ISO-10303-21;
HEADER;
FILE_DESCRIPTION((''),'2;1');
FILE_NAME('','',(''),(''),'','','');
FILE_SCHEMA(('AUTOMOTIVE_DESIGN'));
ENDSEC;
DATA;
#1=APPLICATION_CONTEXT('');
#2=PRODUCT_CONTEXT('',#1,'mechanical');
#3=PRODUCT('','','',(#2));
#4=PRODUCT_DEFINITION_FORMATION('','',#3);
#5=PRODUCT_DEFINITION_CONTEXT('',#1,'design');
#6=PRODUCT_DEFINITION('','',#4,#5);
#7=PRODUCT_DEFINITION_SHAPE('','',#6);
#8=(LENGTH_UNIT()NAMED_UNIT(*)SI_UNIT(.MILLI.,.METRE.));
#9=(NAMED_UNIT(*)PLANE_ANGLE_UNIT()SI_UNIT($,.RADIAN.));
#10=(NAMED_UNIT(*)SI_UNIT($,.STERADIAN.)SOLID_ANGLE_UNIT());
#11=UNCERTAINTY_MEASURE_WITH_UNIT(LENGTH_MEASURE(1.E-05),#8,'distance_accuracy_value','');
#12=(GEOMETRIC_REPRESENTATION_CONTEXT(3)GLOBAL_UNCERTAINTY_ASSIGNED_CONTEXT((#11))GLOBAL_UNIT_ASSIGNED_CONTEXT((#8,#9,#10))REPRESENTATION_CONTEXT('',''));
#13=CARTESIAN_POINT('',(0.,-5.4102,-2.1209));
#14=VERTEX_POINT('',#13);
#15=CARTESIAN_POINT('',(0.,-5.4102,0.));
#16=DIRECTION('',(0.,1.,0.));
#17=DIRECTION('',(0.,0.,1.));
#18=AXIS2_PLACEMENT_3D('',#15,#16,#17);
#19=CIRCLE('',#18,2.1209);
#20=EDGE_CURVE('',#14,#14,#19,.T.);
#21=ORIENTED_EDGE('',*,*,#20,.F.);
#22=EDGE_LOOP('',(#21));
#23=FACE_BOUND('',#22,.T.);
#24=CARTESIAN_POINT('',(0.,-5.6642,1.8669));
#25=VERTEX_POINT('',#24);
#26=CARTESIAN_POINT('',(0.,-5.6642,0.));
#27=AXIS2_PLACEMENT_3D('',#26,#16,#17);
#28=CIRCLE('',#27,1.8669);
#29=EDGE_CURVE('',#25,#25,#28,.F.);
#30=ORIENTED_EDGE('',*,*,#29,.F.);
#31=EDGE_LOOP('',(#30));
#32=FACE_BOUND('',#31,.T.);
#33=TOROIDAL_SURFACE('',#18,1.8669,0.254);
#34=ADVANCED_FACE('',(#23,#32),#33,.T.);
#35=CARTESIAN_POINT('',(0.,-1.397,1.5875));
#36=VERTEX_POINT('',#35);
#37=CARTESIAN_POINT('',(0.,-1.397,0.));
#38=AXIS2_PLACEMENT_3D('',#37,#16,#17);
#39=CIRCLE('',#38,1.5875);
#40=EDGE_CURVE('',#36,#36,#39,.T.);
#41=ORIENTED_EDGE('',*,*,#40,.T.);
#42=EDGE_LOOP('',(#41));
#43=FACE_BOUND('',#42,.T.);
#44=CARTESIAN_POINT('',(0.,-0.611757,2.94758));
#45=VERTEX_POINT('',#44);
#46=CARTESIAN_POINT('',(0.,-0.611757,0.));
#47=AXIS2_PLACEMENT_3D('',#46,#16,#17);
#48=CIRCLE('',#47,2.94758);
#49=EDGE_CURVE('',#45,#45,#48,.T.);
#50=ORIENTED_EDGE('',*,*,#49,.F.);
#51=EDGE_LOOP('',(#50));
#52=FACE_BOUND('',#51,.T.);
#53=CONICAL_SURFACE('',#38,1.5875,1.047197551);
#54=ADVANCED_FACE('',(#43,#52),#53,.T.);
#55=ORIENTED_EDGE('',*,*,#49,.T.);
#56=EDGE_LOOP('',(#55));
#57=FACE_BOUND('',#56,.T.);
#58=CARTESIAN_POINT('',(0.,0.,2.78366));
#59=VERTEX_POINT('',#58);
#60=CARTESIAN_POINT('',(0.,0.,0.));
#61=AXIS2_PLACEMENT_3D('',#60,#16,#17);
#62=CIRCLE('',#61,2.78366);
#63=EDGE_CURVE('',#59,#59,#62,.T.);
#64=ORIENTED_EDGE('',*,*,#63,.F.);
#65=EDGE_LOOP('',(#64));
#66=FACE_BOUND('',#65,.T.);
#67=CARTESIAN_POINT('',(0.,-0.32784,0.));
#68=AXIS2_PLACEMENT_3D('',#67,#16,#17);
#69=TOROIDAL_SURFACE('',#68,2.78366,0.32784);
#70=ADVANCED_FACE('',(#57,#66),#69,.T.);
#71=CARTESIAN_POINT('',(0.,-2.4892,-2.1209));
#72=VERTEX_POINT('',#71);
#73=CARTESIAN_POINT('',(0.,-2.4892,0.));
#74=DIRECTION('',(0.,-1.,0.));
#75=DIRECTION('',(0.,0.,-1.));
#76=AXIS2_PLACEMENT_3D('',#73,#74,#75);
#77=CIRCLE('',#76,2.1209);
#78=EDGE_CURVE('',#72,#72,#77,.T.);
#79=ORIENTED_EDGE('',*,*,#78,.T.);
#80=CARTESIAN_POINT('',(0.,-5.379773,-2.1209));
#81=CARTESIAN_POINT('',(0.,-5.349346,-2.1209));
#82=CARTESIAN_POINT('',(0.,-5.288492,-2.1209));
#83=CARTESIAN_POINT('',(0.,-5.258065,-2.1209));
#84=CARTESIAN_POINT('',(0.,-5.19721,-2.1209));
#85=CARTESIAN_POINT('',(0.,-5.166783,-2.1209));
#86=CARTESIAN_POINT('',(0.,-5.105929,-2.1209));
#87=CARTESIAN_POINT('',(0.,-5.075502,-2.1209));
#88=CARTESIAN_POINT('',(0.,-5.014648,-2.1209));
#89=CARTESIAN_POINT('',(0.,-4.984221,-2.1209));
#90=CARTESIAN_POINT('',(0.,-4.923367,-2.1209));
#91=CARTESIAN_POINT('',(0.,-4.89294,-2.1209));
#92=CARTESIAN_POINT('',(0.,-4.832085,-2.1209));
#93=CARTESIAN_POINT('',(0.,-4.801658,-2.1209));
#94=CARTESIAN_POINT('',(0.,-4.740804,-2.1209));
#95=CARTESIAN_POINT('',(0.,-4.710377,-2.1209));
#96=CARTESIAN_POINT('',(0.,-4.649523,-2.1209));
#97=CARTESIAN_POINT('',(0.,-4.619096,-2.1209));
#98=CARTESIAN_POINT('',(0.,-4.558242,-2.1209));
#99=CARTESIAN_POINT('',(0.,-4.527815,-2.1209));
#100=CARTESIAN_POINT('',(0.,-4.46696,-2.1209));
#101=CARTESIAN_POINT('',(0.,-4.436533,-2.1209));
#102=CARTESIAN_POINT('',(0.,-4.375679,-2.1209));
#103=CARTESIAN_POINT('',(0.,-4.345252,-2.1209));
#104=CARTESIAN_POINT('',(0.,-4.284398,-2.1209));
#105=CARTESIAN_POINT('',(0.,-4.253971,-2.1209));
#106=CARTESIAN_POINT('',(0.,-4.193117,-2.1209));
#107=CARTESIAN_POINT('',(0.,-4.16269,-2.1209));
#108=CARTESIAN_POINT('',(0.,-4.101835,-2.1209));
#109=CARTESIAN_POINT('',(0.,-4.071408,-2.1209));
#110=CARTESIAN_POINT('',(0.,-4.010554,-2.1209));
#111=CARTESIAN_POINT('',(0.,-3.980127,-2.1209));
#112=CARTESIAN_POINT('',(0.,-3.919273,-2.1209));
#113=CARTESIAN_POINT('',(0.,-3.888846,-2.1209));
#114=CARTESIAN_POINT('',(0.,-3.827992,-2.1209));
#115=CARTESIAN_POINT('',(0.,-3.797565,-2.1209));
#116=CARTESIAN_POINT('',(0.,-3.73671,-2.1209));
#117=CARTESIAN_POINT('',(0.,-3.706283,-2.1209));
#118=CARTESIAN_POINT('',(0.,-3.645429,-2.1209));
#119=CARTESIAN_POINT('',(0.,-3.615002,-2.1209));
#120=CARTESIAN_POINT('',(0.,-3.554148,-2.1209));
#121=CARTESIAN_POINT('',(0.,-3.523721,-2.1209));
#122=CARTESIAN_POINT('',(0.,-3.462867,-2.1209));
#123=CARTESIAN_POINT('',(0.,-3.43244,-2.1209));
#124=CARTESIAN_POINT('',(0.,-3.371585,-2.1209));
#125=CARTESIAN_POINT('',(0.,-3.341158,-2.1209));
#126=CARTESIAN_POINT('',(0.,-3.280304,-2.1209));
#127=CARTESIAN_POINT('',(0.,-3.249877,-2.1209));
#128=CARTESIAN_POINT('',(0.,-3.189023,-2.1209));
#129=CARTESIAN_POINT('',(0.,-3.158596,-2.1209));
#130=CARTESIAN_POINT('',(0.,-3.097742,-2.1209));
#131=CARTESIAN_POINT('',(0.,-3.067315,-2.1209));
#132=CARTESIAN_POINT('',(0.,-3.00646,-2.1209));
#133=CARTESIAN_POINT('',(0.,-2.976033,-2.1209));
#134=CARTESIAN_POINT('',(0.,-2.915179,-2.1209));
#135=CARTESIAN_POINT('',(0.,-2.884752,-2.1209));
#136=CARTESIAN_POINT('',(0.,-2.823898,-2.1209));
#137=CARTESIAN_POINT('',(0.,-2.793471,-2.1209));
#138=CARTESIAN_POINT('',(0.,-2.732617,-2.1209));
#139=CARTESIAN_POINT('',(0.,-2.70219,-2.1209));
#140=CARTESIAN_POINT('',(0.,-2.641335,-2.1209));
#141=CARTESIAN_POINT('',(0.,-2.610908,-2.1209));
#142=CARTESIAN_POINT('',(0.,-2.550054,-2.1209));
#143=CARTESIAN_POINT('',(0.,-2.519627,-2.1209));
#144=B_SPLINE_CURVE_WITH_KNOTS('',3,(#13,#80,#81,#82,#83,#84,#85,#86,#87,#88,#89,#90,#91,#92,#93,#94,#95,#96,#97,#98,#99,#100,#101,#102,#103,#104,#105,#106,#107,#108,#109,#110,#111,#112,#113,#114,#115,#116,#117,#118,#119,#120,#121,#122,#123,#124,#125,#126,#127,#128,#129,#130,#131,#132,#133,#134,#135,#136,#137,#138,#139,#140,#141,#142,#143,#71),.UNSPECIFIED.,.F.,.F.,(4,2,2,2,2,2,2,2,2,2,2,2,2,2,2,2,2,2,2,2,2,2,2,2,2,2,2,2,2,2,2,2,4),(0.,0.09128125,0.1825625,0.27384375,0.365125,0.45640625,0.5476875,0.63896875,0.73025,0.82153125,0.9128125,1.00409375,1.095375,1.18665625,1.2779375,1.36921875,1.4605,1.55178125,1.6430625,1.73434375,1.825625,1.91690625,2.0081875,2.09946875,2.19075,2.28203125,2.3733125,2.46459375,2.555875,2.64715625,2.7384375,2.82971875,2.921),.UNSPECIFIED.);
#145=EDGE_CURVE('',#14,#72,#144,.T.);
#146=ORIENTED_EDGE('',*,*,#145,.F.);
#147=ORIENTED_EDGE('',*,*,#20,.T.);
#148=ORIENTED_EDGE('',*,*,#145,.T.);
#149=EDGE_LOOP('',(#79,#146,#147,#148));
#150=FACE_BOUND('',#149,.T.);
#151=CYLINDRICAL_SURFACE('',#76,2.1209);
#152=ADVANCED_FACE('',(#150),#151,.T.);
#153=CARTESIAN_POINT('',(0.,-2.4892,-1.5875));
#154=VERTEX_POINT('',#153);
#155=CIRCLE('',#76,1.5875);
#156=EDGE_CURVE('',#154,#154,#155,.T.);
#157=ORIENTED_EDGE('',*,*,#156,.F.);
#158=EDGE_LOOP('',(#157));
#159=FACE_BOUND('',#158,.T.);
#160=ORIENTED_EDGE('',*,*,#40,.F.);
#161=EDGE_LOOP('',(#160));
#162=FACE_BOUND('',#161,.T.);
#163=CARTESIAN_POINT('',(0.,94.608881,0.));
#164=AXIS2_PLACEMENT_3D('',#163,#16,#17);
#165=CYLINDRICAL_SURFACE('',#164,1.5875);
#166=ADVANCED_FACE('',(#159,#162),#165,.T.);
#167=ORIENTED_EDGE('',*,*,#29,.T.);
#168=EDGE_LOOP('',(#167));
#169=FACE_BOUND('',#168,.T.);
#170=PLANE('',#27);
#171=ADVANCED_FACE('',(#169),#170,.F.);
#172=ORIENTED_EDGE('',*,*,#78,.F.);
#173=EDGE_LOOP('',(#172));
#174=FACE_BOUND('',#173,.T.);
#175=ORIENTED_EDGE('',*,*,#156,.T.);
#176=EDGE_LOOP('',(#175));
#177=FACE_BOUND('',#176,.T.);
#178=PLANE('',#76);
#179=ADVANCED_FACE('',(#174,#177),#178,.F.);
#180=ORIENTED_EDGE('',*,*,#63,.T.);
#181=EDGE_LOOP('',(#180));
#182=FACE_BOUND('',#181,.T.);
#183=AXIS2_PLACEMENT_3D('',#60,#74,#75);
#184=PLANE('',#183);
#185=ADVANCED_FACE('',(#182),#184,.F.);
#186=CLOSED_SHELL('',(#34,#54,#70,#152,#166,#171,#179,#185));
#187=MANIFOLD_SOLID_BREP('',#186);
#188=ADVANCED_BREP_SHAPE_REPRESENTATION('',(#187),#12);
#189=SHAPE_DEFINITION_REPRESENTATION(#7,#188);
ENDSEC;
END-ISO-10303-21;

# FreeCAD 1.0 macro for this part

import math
import FreeCAD as App
import Part
import Sketcher

V = App.Vector
Q = App.Units.Quantity


def edges_at(feature, points):
    """Names of the edges that pass closest to the given points."""
    edges = feature.Shape.Edges
    near = lambda p: min(range(len(edges)), key=lambda i: edges[i].distToShape(Part.Vertex(*p))[0])
    return sorted({f"Edge{near(p) + 1}" for p in points})

doc = App.newDocument("Part")
body = doc.addObject("PartDesign::Body", "Body")

# Sketch on XY plane
sketch1 = body.newObject("Sketcher::SketchObject", "Sketch")
sketch1.AttachmentSupport = (doc.getObject("XY_Plane"), [""])
sketch1.MapMode = "FlatFace"
sketch1.addGeometry([
    Part.LineSegment(V(1.59, -10.06, 0), V(1.59, -1.4, 0)),  # 0
    Part.LineSegment(V(1.59, -1.4, 0), V(2.95, -0.61, 0)),  # 1
    Part.ArcOfCircle(Part.Circle(V(2.78, -0.33, 0), V(0, 0, 1), 0.33), math.radians(-60), math.radians(90)),  # 2
    Part.LineSegment(V(2.78, 0, 0), V(0, 0, 0)),  # 3
    Part.LineSegment(V(0, 0, 0), V(0, -10.06, 0)),  # 4
    Part.LineSegment(V(0, -10.06, 0), V(1.59, -10.06, 0)),  # 5
], False)
sketch1.addConstraint([
    Sketcher.Constraint("Coincident", 0, 2, 1, 1),
    Sketcher.Constraint("Tangent", 1, 2, 2, 1),
    Sketcher.Constraint("Tangent", 2, 2, 3, 1),
    Sketcher.Constraint("Coincident", 3, 2, 4, 1),
    Sketcher.Constraint("Coincident", 4, 2, 5, 1),
    Sketcher.Constraint("Coincident", 5, 2, 0, 1),
    Sketcher.Constraint("Vertical", 0),
    Sketcher.Constraint("Horizontal", 3),
    Sketcher.Constraint("Vertical", 4),
    Sketcher.Constraint("Horizontal", 5),
    Sketcher.Constraint("Coincident", 3, 2, -1, 1),
    Sketcher.Constraint("Angle", 1, Q("30 deg")),
    Sketcher.Constraint("DistanceX", 5, 1, 5, 2, Q("0.0625 in")),
    Sketcher.Constraint("DistanceY", 0, 1, 0, 2, Q("0.341 in")),
    Sketcher.Constraint("DistanceY", 4, 2, 4, 1, Q("0.396 in")),
    Sketcher.Constraint("Radius", 2, 0.32784),
])
revolution = body.newObject("PartDesign::Revolution", "Revolution")
revolution.Profile = sketch1
revolution.ReferenceAxis = (sketch1, ["V_Axis"])
revolution.Angle = 360

# Sketch on XZ plane
sketch2 = body.newObject("Sketcher::SketchObject", "Sketch001")
sketch2.AttachmentSupport = (doc.getObject("XZ_Plane"), [""])
sketch2.MapMode = "FlatFace"
sketch2.AttachmentOffset = App.Placement(V(0, 0, 0.396 * 25.4), App.Rotation())
sketch2.addGeometry(Part.Circle(V(0, 0, 0), V(0, 0, 1), 2.1), False)
sketch2.addConstraint([
    Sketcher.Constraint("Coincident", 0, 3, -1, 1),
    Sketcher.Constraint("Diameter", 0, Q("0.167 in")),
])
pad1 = body.newObject("PartDesign::Pad", "Pad")
pad1.Profile = sketch2
pad1.Length = Q("0.298 in")
pad1.Reversed = True

# Sketch on XZ plane
sketch3 = body.newObject("Sketcher::SketchObject", "Sketch002")
sketch3.AttachmentSupport = (doc.getObject("XZ_Plane"), [""])
sketch3.MapMode = "FlatFace"
sketch3.AttachmentOffset = App.Placement(V(0, 0, 0.563 * 25.4), App.Rotation())
sketch3.addGeometry(Part.Circle(V(0, 0, 0), V(0, 0, 1), 2.1), False)
sketch3.addConstraint([
    Sketcher.Constraint("Coincident", 0, 3, -1, 1),
    Sketcher.Constraint("Diameter", 0, Q("0.167 in")),
])
pocket1 = body.newObject("PartDesign::Pocket", "Pocket")
pocket1.Profile = sketch3
pocket1.Length = Q("0.34 in")
doc.recompute()

fillet = body.newObject("PartDesign::Fillet", "Fillet")
fillet.Base = (pocket1, edges_at(pocket1, [(0, -5.664, 2.121)]))
fillet.Radius = Q("0.01 in")

doc.recompute()
